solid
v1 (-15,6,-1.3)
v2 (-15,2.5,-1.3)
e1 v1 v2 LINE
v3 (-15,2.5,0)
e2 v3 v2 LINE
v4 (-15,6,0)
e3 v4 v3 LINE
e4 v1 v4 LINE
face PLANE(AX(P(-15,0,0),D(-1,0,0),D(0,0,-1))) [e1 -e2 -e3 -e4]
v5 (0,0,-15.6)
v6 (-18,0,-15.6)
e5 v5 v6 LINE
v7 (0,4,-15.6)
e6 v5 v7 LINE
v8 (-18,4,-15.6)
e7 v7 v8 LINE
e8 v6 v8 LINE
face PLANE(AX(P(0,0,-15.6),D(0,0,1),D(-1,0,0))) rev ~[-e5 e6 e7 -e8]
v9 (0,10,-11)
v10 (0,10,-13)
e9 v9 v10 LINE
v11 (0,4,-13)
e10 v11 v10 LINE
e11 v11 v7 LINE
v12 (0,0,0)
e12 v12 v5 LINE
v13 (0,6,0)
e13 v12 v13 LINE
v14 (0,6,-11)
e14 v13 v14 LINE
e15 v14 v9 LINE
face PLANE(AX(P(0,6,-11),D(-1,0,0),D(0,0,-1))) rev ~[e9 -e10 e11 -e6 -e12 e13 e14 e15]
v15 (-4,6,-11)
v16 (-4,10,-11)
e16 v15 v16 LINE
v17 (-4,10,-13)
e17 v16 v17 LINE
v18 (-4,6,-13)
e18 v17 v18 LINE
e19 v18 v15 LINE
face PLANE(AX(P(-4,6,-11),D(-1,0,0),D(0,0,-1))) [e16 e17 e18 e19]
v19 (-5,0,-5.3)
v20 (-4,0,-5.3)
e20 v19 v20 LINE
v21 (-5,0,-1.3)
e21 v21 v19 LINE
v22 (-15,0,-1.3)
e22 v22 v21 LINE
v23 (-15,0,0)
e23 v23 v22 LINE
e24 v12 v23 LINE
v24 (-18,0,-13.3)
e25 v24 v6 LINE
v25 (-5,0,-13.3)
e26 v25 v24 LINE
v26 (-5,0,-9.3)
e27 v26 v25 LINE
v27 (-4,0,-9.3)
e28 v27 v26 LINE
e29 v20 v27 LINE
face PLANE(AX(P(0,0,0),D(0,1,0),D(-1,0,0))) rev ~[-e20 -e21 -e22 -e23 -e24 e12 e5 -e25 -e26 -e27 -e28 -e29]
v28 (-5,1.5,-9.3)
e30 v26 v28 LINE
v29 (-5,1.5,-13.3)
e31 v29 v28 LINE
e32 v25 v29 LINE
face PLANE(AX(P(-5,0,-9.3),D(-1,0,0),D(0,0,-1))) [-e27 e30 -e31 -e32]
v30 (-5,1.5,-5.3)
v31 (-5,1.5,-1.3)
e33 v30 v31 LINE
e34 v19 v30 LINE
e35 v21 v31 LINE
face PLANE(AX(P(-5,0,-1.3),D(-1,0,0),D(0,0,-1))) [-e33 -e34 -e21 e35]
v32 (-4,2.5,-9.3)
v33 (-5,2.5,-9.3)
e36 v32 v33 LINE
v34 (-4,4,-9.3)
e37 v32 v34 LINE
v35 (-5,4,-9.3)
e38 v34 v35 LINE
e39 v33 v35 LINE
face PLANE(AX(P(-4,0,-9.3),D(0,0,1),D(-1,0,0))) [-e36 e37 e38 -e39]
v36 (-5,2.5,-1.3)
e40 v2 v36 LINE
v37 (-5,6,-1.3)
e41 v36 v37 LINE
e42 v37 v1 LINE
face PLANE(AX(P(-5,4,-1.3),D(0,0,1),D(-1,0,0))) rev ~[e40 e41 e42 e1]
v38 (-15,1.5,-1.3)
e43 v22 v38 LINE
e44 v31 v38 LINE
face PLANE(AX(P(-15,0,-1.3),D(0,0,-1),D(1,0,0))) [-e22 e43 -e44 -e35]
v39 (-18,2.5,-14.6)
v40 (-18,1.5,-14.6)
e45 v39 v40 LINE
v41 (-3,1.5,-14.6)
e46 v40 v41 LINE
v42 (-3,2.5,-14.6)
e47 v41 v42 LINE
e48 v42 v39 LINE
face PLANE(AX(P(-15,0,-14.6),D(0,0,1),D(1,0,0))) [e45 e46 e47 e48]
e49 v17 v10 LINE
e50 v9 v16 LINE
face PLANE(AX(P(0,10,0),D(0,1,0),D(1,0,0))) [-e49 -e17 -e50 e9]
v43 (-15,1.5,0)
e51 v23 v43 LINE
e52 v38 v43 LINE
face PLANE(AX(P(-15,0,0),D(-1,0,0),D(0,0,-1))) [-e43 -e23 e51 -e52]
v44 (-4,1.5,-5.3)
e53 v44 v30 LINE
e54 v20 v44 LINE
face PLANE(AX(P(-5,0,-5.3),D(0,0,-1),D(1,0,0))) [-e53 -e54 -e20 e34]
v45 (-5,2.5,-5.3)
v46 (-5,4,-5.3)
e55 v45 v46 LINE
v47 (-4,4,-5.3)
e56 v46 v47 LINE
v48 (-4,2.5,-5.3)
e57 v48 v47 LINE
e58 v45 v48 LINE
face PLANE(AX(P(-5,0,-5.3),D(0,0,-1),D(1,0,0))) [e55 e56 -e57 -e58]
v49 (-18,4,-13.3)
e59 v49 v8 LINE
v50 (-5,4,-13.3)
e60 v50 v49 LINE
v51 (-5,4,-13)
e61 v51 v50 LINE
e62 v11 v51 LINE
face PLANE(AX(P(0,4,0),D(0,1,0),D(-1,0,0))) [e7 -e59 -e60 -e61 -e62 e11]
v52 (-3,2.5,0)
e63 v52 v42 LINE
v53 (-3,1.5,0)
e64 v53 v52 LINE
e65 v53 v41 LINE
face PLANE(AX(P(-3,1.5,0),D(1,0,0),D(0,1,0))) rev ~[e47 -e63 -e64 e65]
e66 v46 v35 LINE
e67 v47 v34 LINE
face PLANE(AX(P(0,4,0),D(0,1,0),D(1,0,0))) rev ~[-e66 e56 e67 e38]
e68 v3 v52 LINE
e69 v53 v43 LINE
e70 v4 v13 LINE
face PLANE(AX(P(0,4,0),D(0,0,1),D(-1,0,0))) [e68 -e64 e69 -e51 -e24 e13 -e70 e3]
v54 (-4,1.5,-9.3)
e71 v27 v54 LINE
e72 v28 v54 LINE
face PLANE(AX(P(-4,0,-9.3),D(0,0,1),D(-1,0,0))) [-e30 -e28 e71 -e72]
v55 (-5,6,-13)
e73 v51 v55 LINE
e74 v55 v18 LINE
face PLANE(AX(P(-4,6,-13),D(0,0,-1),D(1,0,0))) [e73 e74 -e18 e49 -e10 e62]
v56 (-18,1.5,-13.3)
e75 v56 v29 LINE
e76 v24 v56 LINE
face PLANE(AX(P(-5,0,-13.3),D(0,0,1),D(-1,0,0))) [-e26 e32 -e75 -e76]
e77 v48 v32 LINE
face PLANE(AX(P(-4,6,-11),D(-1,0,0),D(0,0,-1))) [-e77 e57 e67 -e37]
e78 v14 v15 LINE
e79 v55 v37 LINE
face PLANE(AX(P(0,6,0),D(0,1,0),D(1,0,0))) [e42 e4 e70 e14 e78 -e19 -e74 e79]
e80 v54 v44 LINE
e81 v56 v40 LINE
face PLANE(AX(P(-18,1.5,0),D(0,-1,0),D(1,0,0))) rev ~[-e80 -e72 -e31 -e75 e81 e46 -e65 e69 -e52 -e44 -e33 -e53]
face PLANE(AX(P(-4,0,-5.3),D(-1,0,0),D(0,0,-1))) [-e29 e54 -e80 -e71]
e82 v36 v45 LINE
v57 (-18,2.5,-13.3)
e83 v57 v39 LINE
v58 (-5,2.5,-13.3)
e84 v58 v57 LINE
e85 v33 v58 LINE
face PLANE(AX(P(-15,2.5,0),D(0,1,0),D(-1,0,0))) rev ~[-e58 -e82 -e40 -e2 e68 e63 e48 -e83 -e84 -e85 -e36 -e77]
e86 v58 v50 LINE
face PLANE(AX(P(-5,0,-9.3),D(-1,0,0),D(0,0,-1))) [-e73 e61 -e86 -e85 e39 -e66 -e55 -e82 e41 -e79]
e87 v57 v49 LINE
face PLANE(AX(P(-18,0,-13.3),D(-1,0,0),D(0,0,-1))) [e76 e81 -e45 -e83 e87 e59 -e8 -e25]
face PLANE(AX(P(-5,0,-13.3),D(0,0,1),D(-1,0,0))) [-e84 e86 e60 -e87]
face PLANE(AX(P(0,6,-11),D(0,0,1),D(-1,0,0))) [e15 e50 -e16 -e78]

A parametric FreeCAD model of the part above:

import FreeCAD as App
import Part
import Sketcher

V = App.Vector


def add_polygon(sketch, points):
    """Adds a closed chain of lines whose ends are joined by coincident constraints."""
    first, n = sketch.GeometryCount, len(points)
    for a, b in zip(points, points[1:] + points[:1]):
        sketch.addGeometry(Part.LineSegment(App.Vector(*a, 0), App.Vector(*b, 0)), False)
    for i in range(n):
        sketch.addConstraint(Sketcher.Constraint("Coincident", first + i, 2, first + (i + 1) % n, 1))

doc = App.newDocument("Part")
body = doc.addObject("PartDesign::Body", "Body")

sketch1 = body.newObject("Sketcher::SketchObject", "Sketch")
sketch1.AttachmentSupport = (doc.getObject("XZ_Plane"), [""])
sketch1.MapMode = "FlatFace"
add_polygon(sketch1, [(-15, 0), (0, 0), (0, -15.6), (-18, -15.6), (-18, -13.3), (-5, -13.3), (-5, -9.3), (-4, -9.3), (-4, -5.3), (-5, -5.3), (-5, -1.3), (-15, -1.3)])
sketch1.addConstraint([
    Sketcher.Constraint("Horizontal", 0),
    Sketcher.Constraint("Vertical", 1),
    Sketcher.Constraint("Horizontal", 2),
    Sketcher.Constraint("Vertical", 3),
    Sketcher.Constraint("Horizontal", 4),
    Sketcher.Constraint("Vertical", 5),
    Sketcher.Constraint("Horizontal", 6),
    Sketcher.Constraint("Vertical", 7),
    Sketcher.Constraint("Horizontal", 8),
    Sketcher.Constraint("Vertical", 9),
    Sketcher.Constraint("Horizontal", 10),
    Sketcher.Constraint("Vertical", 11),
    Sketcher.Constraint("Coincident", 0, 2, -1, 1),
    Sketcher.Constraint("Vertical", 5, 2, 8, 2),
    Sketcher.Constraint("Equal", 5, 7),
    Sketcher.Constraint("Equal", 7, 9),
    Sketcher.Constraint("DistanceX", 0, 1, 0, 2, 15.0),
    Sketcher.Constraint("DistanceX", 2, 2, 2, 1, 18.0),
    Sketcher.Constraint("DistanceX", 4, 1, 4, 2, 13.0),
    Sketcher.Constraint("DistanceX", 6, 1, 6, 2, 1.0),
    Sketcher.Constraint("DistanceY", 5, 1, 5, 2, 4.0),
    Sketcher.Constraint("DistanceY", 1, 2, 1, 1, 15.6),
    Sketcher.Constraint("DistanceY", 11, 1, 11, 2, 1.3),
])
pad1 = body.newObject("PartDesign::Pad", "Pad")
pad1.Profile = sketch1
pad1.Length = 4
pad1.Reversed = True

sketch2 = body.newObject("Sketcher::SketchObject", "Sketch001")
sketch2.AttachmentSupport = (doc.getObject("XY_Plane"), [""])
sketch2.MapMode = "FlatFace"
add_polygon(sketch2, [(-18, 2.5), (-18, 1.5), (-3, 1.5), (-3, 2.5)])
sketch2.addConstraint([
    Sketcher.Constraint("Vertical", 0),
    Sketcher.Constraint("Horizontal", 1),
    Sketcher.Constraint("Vertical", 2),
    Sketcher.Constraint("Horizontal", 3),
    Sketcher.Constraint("DistanceY", 0, 2, 0, 1, 1.0),
    Sketcher.Constraint("DistanceX", 1, 2, -1, 1, 3.0),
    Sketcher.Constraint("DistanceY", -1, 1, 0, 2, 1.5),
    Sketcher.Constraint("DistanceX", 1, 1, 1, 2, 15.0),
])
pocket1 = body.newObject("PartDesign::Pocket", "Pocket")
pocket1.Profile = sketch2
pocket1.Length = 14.6

sketch3 = body.newObject("Sketcher::SketchObject", "Sketch002")
sketch3.AttachmentSupport = (doc.getObject("XZ_Plane"), [""])
sketch3.MapMode = "FlatFace"
sketch3.AttachmentOffset = App.Placement(V(0, 0, -4), App.Rotation())
add_polygon(sketch3, [(-4, 0), (0, 0), (0, -13), (-4, -13)])
sketch3.addConstraint([
    Sketcher.Constraint("Horizontal", 0),
    Sketcher.Constraint("Vertical", 1),
    Sketcher.Constraint("Horizontal", 2),
    Sketcher.Constraint("Vertical", 3),
    Sketcher.Constraint("Coincident", 0, 2, -1, 1),
    Sketcher.Constraint("DistanceX", 0, 1, 0, 2, 4.0),
    Sketcher.Constraint("DistanceY", 1, 2, 1, 1, 13.0),
])
pad2 = body.newObject("PartDesign::Pad", "Pad001")
pad2.Profile = sketch3
pad2.Length = 2
pad2.Reversed = True

sketch4 = body.newObject("Sketcher::SketchObject", "Sketch003")
sketch4.AttachmentSupport = (doc.getObject("XZ_Plane"), [""])
sketch4.MapMode = "FlatFace"
sketch4.AttachmentOffset = App.Placement(V(0, 0, -6), App.Rotation())
add_polygon(sketch4, [(-4, -11), (0, -11), (0, -13), (-4, -13)])
sketch4.addConstraint([
    Sketcher.Constraint("Horizontal", 0),
    Sketcher.Constraint("Vertical", 1),
    Sketcher.Constraint("Horizontal", 2),
    Sketcher.Constraint("Vertical", 3),
    Sketcher.Constraint("PointOnObject", 0, 2, -2),
    Sketcher.Constraint("DistanceY", 1, 2, 1, 1, 2.0),
    Sketcher.Constraint("DistanceX", 0, 1, 0, 2, 4.0),
    Sketcher.Constraint("DistanceY", 0, 2, -1, 1, 11.0),
])
pad3 = body.newObject("PartDesign::Pad", "Pad002")
pad3.Profile = sketch4
pad3.Length = 4
pad3.Reversed = True

sketch5 = body.newObject("Sketcher::SketchObject", "Sketch004")
sketch5.AttachmentSupport = (doc.getObject("XZ_Plane"), [""])
sketch5.MapMode = "FlatFace"
sketch5.AttachmentOffset = App.Placement(V(0, 0, -4), App.Rotation())
add_polygon(sketch5, [(-4, 0), (-4, -13), (-5, -13), (-5, -1.3), (-15, -1.3), (-15, 0)])
sketch5.addConstraint([
    Sketcher.Constraint("Vertical", 0),
    Sketcher.Constraint("Horizontal", 1),
    Sketcher.Constraint("Vertical", 2),
    Sketcher.Constraint("Horizontal", 3),
    Sketcher.Constraint("Vertical", 4),
    Sketcher.Constraint("Horizontal", 5),
    Sketcher.Constraint("PointOnObject", 4, 2, -1),
    Sketcher.Constraint("DistanceY", 0, 2, 0, 1, 13.0),
    Sketcher.Constraint("DistanceX", 1, 2, 1, 1, 1.0),
    Sketcher.Constraint("DistanceX", 3, 2, 3, 1, 10.0),
    Sketcher.Constraint("DistanceY", 2, 1, 2, 2, 11.7),
    Sketcher.Constraint("DistanceX", 0, 2, -1, 1, 4.0),
])
pad4 = body.newObject("PartDesign::Pad", "Pad003")
pad4.Profile = sketch5
pad4.Length = 2
pad4.Reversed = True

doc.recompute()
